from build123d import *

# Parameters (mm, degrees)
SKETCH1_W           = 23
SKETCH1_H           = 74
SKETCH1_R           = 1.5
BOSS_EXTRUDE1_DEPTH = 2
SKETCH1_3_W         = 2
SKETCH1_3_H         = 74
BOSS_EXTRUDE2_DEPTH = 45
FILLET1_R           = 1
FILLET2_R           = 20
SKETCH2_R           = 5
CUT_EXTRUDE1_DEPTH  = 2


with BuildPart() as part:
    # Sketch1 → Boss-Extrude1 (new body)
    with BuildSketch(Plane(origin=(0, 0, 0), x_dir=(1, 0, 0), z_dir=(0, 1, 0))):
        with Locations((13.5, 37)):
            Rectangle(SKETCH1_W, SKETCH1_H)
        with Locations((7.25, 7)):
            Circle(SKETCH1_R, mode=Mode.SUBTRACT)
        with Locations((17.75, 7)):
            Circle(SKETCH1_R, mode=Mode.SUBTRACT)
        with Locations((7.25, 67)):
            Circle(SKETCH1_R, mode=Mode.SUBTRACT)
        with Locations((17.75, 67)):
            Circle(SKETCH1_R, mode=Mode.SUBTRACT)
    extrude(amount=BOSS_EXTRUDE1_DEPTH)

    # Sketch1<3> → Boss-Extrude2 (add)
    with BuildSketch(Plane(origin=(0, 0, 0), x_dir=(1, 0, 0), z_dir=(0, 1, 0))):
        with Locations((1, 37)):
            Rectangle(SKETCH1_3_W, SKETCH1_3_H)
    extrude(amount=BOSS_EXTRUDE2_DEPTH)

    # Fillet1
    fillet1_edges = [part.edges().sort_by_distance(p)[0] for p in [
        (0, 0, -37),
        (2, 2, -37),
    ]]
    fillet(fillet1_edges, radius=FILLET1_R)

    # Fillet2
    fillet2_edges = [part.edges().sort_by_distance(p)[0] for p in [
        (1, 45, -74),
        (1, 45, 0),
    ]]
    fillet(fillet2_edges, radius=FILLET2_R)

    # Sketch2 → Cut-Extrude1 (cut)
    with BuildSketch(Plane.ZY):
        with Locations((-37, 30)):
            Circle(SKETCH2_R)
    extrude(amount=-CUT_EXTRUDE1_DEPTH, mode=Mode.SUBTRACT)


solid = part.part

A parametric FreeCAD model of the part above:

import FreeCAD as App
import Part
import Sketcher
from FreeCAD import Vector


def edges_at(feature, points):
    """Names of the edges that pass closest to the given points."""
    edges = feature.Shape.Edges
    near = lambda p: min(range(len(edges)), key=lambda i: edges[i].distToShape(Part.Vertex(*p))[0])
    return sorted({f"Edge{near(p) + 1}" for p in points})


def add_polygon(sketch, points):
    """Adds a closed chain of lines whose ends are joined by coincident constraints."""
    first, n = sketch.GeometryCount, len(points)
    for a, b in zip(points, points[1:] + points[:1]):
        sketch.addGeometry(Part.LineSegment(App.Vector(*a, 0), App.Vector(*b, 0)), False)
    for i in range(n):
        sketch.addConstraint(Sketcher.Constraint("Coincident", first + i, 2, first + (i + 1) % n, 1))

doc = App.newDocument("Part")
body = doc.addObject("PartDesign::Body", "Body")

# Sketch on XZ plane
sketch1 = body.newObject("Sketcher::SketchObject", "Sketch")
sketch1.AttachmentSupport = (doc.getObject("XZ_Plane"), [""])
sketch1.MapMode = "FlatFace"
add_polygon(sketch1, [(2, -74), (2, 0), (25, 0), (25, -74)])  # lines 0-3
sketch1.addGeometry(Part.Circle(Vector(7.2, -7, 0), Vector(0, 0, 1), 1.5), False)  # 4
sketch1.addGeometry(Part.Circle(Vector(17.8, -7, 0), Vector(0, 0, 1), 1.5), False)  # 5
sketch1.addGeometry(Part.Circle(Vector(7.2, -67, 0), Vector(0, 0, 1), 1.5), False)  # 6
sketch1.addGeometry(Part.Circle(Vector(17.8, -67, 0), Vector(0, 0, 1), 1.5), False)  # 7
sketch1.addConstraint(Sketcher.Constraint("Vertical", 0))
sketch1.addConstraint(Sketcher.Constraint("Horizontal", 1))
sketch1.addConstraint(Sketcher.Constraint("Vertical", 2))
sketch1.addConstraint(Sketcher.Constraint("Horizontal", 3))
sketch1.addConstraint(Sketcher.Constraint("Equal", 4, 5))
sketch1.addConstraint(Sketcher.Constraint("Equal", 5, 6))
sketch1.addConstraint(Sketcher.Constraint("Equal", 6, 7))
sketch1.addConstraint(Sketcher.Constraint("PointOnObject", 0, 2, -1))
sketch1.addConstraint(Sketcher.Constraint("Horizontal", 4, 3, 5, 3))
sketch1.addConstraint(Sketcher.Constraint("Horizontal", 6, 3, 7, 3))
sketch1.addConstraint(Sketcher.Constraint("Vertical", 4, 3, 6, 3))
sketch1.addConstraint(Sketcher.Constraint("Vertical", 5, 3, 7, 3))
sketch1.addConstraint(Sketcher.Constraint("Diameter", 4, 3.0))
sketch1.addConstraint(Sketcher.Constraint("DistanceX", 1, 1, 1, 2, 23.0))
sketch1.addConstraint(Sketcher.Constraint("DistanceY", 0, 1, 0, 2, 74.0))
sketch1.addConstraint(Sketcher.Constraint("DistanceY", 4, 3, -1, 1, 7.0))
sketch1.addConstraint(Sketcher.Constraint("DistanceY", 6, 3, -1, 1, 67.0))
sketch1.addConstraint(Sketcher.Constraint("DistanceX", -1, 1, 0, 2, 2.0))
sketch1.addConstraint(Sketcher.Constraint("DistanceX", 4, 3, 5, 3, 10.5))
sketch1.addConstraint(Sketcher.Constraint("DistanceX", -1, 1, 4, 3, 7.25))
pad1 = body.newObject("PartDesign::Pad", "Pad")
pad1.Profile = sketch1
pad1.Length = 2
pad1.Reversed = True

# Sketch on XZ plane
sketch2 = body.newObject("Sketcher::SketchObject", "Sketch001")
sketch2.AttachmentSupport = (doc.getObject("XZ_Plane"), [""])
sketch2.MapMode = "FlatFace"
add_polygon(sketch2, [(0, -74), (0, 0), (2, 0), (2, -74)])  # lines 0-3
sketch2.addConstraint(Sketcher.Constraint("Vertical", 0))
sketch2.addConstraint(Sketcher.Constraint("Horizontal", 1))
sketch2.addConstraint(Sketcher.Constraint("Vertical", 2))
sketch2.addConstraint(Sketcher.Constraint("Horizontal", 3))
sketch2.addConstraint(Sketcher.Constraint("Coincident", 0, 2, -1, 1))
sketch2.addConstraint(Sketcher.Constraint("DistanceX", 1, 1, 1, 2, 2.0))
sketch2.addConstraint(Sketcher.Constraint("DistanceY", 0, 1, 0, 2, 74.0))
pad2 = body.newObject("PartDesign::Pad", "Pad001")
pad2.Profile = sketch2
pad2.Length = 45
pad2.Reversed = True
doc.recompute()

fillet = body.newObject("PartDesign::Fillet", "Fillet")
fillet.Base = (pad2, edges_at(pad2, [(0, 0, -37), (2, 2, -37)]))
fillet.Radius = 1
doc.recompute()

fillet2 = body.newObject("PartDesign::Fillet", "Fillet001")
fillet2.Base = (fillet, edges_at(fillet, [(1, 45, -74), (1, 45, 0)]))
fillet2.Radius = 20

# Sketch on YZ plane
sketch3 = body.newObject("Sketcher::SketchObject", "Sketch002")
sketch3.AttachmentSupport = (doc.getObject("YZ_Plane"), [""])
sketch3.MapMode = "FlatFace"
sketch3.addGeometry(Part.Circle(Vector(30, -37, 0), Vector(0, 0, 1), 5), False)
sketch3.addConstraint(Sketcher.Constraint("Diameter", 0, 10.0))
sketch3.addConstraint(Sketcher.Constraint("DistanceX", -1, 1, 0, 3, 30.0))
sketch3.addConstraint(Sketcher.Constraint("DistanceY", 0, 3, -1, 1, 37.0))
pocket1 = body.newObject("PartDesign::Pocket", "Pocket")
pocket1.Profile = sketch3
pocket1.Length = 2
pocket1.Reversed = True

doc.recompute()
